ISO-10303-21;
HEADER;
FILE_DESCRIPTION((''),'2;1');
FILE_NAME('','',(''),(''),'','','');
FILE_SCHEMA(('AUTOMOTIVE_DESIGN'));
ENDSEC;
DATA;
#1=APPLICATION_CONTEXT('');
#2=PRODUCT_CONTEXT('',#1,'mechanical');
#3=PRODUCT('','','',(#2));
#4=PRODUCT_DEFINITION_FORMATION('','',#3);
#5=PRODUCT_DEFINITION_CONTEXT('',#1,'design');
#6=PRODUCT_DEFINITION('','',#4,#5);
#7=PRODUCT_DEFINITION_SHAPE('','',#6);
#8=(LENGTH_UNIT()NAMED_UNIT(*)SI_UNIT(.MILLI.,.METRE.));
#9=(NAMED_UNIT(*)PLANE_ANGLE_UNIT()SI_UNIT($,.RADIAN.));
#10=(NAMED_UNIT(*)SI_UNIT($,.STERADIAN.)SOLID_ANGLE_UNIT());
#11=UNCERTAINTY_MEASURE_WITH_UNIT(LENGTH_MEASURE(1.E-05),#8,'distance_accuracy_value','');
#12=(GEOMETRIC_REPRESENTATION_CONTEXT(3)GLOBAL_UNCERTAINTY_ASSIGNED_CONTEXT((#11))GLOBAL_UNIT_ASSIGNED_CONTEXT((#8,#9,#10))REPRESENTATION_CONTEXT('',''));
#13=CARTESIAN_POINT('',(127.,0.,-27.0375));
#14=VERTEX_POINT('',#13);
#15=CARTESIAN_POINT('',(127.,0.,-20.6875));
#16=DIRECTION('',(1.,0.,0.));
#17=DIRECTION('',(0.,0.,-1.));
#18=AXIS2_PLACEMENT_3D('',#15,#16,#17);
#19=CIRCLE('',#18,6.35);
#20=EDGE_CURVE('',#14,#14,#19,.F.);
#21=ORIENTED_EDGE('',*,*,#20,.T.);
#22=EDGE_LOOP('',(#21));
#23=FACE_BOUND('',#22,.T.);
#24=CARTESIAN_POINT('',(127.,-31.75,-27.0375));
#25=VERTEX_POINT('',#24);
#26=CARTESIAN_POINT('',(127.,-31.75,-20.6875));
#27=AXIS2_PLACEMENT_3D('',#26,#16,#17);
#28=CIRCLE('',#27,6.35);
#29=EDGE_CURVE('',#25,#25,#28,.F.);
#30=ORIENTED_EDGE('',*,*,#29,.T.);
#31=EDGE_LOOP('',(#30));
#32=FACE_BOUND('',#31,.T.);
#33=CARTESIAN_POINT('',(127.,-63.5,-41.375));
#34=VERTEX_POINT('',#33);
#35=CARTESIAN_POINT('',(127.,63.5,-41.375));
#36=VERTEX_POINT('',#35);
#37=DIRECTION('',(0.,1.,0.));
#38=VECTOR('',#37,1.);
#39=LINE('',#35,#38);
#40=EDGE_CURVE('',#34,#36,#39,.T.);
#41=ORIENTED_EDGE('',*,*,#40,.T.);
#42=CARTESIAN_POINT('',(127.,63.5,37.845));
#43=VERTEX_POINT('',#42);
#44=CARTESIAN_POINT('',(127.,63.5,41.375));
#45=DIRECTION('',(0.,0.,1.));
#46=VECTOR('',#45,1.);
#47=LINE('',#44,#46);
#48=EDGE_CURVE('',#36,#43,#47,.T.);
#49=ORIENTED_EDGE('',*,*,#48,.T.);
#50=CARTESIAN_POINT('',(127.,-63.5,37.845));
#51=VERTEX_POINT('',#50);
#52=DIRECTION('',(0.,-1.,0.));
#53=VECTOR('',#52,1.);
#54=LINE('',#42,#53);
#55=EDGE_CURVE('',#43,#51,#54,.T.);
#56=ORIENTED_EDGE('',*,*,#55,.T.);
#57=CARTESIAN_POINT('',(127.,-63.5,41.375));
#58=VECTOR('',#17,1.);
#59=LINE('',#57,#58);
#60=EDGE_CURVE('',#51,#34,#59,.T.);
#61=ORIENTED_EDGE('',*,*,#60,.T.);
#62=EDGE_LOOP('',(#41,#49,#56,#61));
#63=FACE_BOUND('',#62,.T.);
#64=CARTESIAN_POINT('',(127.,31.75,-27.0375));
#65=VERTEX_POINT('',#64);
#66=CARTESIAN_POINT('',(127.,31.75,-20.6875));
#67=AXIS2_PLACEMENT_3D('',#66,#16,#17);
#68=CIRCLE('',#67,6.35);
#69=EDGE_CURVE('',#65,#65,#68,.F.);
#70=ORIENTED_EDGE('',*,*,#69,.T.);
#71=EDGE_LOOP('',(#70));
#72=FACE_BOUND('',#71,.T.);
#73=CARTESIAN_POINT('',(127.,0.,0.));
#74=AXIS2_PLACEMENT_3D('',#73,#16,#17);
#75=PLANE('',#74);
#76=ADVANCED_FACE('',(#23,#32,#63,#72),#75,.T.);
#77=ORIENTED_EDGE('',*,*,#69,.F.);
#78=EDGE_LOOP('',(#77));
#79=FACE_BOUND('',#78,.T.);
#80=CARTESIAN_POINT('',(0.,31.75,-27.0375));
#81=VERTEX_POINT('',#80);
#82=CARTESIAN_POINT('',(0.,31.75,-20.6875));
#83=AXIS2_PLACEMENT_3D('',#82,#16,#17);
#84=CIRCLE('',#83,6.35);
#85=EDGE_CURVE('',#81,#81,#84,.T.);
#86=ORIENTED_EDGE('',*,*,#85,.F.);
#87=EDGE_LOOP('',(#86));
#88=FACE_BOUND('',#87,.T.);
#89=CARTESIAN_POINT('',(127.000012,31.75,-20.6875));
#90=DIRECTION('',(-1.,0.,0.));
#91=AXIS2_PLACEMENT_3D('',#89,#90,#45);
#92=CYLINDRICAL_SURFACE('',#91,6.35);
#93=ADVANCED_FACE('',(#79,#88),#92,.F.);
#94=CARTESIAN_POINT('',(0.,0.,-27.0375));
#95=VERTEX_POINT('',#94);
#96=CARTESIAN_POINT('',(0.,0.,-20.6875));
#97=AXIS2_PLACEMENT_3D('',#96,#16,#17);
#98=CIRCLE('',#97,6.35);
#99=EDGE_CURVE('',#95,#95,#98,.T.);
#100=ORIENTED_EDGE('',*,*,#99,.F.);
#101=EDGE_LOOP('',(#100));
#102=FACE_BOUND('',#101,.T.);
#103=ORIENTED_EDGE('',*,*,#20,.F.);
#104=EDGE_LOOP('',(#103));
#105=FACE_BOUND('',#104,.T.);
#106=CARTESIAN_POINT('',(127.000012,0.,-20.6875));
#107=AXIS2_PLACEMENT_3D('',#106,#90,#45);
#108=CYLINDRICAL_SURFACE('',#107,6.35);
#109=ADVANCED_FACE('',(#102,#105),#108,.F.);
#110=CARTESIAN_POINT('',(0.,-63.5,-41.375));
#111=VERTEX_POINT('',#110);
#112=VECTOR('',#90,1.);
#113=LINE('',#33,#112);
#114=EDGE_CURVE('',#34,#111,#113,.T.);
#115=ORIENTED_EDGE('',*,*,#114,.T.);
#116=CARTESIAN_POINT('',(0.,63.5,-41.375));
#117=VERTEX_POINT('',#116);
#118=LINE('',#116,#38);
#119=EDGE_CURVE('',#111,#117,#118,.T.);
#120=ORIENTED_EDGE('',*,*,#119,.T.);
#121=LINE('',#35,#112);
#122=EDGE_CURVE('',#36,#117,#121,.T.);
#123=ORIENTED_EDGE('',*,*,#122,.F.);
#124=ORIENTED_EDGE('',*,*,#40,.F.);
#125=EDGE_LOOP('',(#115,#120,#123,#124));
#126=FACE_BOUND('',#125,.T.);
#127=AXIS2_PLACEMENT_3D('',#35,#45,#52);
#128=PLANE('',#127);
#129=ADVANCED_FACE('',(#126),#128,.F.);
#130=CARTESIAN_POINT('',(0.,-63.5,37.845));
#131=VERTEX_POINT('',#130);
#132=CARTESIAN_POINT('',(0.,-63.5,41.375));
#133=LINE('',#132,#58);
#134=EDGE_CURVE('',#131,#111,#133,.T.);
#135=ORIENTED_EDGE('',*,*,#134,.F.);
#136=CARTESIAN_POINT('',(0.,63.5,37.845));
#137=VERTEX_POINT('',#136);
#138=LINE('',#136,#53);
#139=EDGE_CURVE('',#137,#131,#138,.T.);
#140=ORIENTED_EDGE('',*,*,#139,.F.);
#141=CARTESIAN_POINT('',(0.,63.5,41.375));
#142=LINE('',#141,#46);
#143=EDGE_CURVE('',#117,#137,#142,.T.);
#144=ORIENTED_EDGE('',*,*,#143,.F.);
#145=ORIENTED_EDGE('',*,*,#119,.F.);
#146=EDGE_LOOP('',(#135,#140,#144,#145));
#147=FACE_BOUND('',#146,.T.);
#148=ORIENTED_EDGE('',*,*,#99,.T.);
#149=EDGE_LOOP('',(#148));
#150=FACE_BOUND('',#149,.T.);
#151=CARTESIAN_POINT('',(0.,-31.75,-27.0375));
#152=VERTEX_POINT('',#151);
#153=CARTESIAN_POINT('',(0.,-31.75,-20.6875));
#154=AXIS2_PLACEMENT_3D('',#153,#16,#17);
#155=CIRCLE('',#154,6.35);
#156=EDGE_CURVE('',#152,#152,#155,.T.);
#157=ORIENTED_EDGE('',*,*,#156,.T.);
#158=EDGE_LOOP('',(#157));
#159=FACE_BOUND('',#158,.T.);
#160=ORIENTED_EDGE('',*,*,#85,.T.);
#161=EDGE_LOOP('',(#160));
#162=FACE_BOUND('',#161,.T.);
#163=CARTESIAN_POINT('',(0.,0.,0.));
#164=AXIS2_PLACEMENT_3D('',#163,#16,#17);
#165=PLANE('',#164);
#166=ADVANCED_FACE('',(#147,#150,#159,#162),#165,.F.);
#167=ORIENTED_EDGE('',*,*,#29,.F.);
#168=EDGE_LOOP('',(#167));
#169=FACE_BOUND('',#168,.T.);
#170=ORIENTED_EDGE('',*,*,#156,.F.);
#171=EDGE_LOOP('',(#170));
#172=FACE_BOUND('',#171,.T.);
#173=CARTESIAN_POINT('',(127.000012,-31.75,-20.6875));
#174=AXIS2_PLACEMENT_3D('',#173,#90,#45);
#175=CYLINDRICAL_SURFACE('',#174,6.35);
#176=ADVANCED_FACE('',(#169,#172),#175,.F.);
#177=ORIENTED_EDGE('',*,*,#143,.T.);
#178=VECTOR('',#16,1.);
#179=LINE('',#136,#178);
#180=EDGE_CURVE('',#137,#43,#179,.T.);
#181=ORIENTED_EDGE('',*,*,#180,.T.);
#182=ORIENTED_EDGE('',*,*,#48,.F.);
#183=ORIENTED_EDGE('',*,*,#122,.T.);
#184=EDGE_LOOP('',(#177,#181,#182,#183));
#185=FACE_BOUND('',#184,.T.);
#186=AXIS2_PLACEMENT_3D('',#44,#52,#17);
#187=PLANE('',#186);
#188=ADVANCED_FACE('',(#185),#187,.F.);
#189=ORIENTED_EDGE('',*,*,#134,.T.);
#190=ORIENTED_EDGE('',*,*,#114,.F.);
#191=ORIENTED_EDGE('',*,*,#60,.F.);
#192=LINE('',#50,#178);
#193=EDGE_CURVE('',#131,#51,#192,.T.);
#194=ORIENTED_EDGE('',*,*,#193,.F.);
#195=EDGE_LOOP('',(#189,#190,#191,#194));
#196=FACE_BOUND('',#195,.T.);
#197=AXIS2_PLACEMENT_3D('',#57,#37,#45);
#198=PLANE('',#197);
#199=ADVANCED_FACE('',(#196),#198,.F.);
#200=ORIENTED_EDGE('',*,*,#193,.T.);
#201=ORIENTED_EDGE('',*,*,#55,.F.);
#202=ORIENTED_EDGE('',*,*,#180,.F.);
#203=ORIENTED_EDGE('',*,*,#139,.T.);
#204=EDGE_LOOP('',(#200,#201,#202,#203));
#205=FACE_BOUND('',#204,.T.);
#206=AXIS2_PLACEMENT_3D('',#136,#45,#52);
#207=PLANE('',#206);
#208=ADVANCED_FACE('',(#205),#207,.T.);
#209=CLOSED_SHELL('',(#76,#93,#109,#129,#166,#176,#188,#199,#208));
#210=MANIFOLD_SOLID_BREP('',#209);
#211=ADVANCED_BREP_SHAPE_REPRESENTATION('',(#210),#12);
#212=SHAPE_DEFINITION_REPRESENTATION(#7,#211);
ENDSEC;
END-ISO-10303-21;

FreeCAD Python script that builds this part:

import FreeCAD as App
import Part
import Sketcher
from FreeCAD import Vector


def add_polygon(sketch, points):
    """Adds a closed chain of lines whose ends are joined by coincident constraints."""
    first, n = sketch.GeometryCount, len(points)
    for a, b in zip(points, points[1:] + points[:1]):
        sketch.addGeometry(Part.LineSegment(App.Vector(*a, 0), App.Vector(*b, 0)), False)
    for i in range(n):
        sketch.addConstraint(Sketcher.Constraint("Coincident", first + i, 2, first + (i + 1) % n, 1))

doc = App.newDocument("Part")
params = doc.addObject("Spreadsheet::Sheet", "Params")
for row, (alias, value) in enumerate([
    ("sketch1_width", "127 mm"),
    ("sketch1_height", "82.75 mm"),
    ("pad1_length", "127 mm"),
    ("sketch2_diameter", "12.7 mm"),
    ("pocket2_length", "127 mm"),
    ("sketch4_width", "200 mm"),
], start=1):
    params.set(f"A{row}", alias)
    params.set(f"B{row}", "=" + value)
    params.setAlias(f"B{row}", alias)

body = doc.addObject("PartDesign::Body", "Body")

# Sketch on YZ plane
sketch1 = body.newObject("Sketcher::SketchObject", "Sketch")
sketch1.AttachmentSupport = (doc.getObject("YZ_Plane"), [""])
sketch1.MapMode = "FlatFace"
add_polygon(sketch1, [(63.5, 41.375), (-63.5, 41.375), (-63.5, -41.375), (63.5, -41.375)])  # lines 0-3
sketch1.addConstraint(Sketcher.Constraint("Horizontal", 0))
sketch1.addConstraint(Sketcher.Constraint("Vertical", 1))
sketch1.addConstraint(Sketcher.Constraint("Horizontal", 2))
sketch1.addConstraint(Sketcher.Constraint("Vertical", 3))
sketch1.addConstraint(Sketcher.Constraint("Symmetric", 0, 2, 2, 2, -1, 1))
sketch1.addConstraint(Sketcher.Constraint("DistanceX", 0, 2, 0, 1, 127.0))
sketch1.addConstraint(Sketcher.Constraint("DistanceY", 1, 2, 1, 1, 82.75))
sketch1.setExpression("Constraints[9]", "Params.sketch1_width")
sketch1.setExpression("Constraints[10]", "Params.sketch1_height")
pad1 = body.newObject("PartDesign::Pad", "Pad")
pad1.Profile = sketch1
pad1.setExpression("Length", "Params.pad1_length")

# Sketch on YZ plane
sketch2 = body.newObject("Sketcher::SketchObject", "Sketch001")
sketch2.AttachmentSupport = (doc.getObject("YZ_Plane"), [""])
sketch2.MapMode = "FlatFace"
sketch2.AttachmentOffset = App.Placement(Vector(0, 0, 127), App.Rotation())
sketch2.addGeometry(Part.Circle(Vector(31.75, -20.6875, 0), Vector(0, 0, 1), 6.35), False)
sketch2.addGeometry(Part.Circle(Vector(-31.75, -20.6875, 0), Vector(0, 0, 1), 6.35), False)
sketch2.addGeometry(Part.Circle(Vector(0, -20.6875, 0), Vector(0, 0, 1), 6.35), False)
sketch2.addConstraint(Sketcher.Constraint("Equal", 0, 1))
sketch2.addConstraint(Sketcher.Constraint("Equal", 1, 2))
sketch2.addConstraint(Sketcher.Constraint("Symmetric", 0, 3, 1, 3, -2))
sketch2.addConstraint(Sketcher.Constraint("PointOnObject", 2, 3, -2))
sketch2.addConstraint(Sketcher.Constraint("Horizontal", 1, 3, 2, 3))
sketch2.addConstraint(Sketcher.Constraint("Diameter", 0, 12.7))
sketch2.addConstraint(Sketcher.Constraint("DistanceX", 1, 3, 0, 3, 63.5))
sketch2.addConstraint(Sketcher.Constraint("DistanceY", 0, 3, -1, 1, 20.6875))
sketch2.setExpression("Constraints[5]", "Params.sketch2_diameter")
pocket1 = body.newObject("PartDesign::Pocket", "Pocket")
pocket1.Profile = sketch2
pocket1.Type = "ThroughAll"
pocket1.Midplane = True

# Sketch on YZ plane
sketch3 = body.newObject("Sketcher::SketchObject", "Sketch002")
sketch3.AttachmentSupport = (doc.getObject("YZ_Plane"), [""])
sketch3.MapMode = "FlatFace"
sketch3.AttachmentOffset = App.Placement(Vector(0, 0, 127), App.Rotation())
add_polygon(sketch3, [(63.5, 67.388042), (-66.189602, 67.388042), (-66.189602, 38.635), (63.5, 38.635)])  # lines 0-3
sketch3.addConstraint(Sketcher.Constraint("Horizontal", 0))
sketch3.addConstraint(Sketcher.Constraint("Vertical", 1))
sketch3.addConstraint(Sketcher.Constraint("Horizontal", 2))
sketch3.addConstraint(Sketcher.Constraint("Vertical", 3))
sketch3.addConstraint(Sketcher.Constraint("DistanceX", -1, 1, 2, 2, 63.5))
sketch3.addConstraint(Sketcher.Constraint("DistanceX", 0, 2, 0, 1, 129.689602))
sketch3.addConstraint(Sketcher.Constraint("DistanceY", -1, 1, 1, 2, 38.635))
sketch3.addConstraint(Sketcher.Constraint("DistanceY", 1, 2, 1, 1, 28.753042))
pocket2 = body.newObject("PartDesign::Pocket", "Pocket001")
pocket2.Profile = sketch3
pocket2.setExpression("Length", "Params.pocket2_length")

# Sketch on YZ plane
sketch4 = body.newObject("Sketcher::SketchObject", "Sketch003")
sketch4.AttachmentSupport = (doc.getObject("YZ_Plane"), [""])
sketch4.MapMode = "FlatFace"
sketch4.AttachmentOffset = App.Placement(Vector(0, 0, 127), App.Rotation())
add_polygon(sketch4, [(63.5, 41.055143), (-136.5, 41.055143), (-136.5, 37.845), (63.5, 37.845)])  # lines 0-3
sketch4.addConstraint(Sketcher.Constraint("Horizontal", 0))
sketch4.addConstraint(Sketcher.Constraint("Vertical", 1))
sketch4.addConstraint(Sketcher.Constraint("Horizontal", 2))
sketch4.addConstraint(Sketcher.Constraint("Vertical", 3))
sketch4.addConstraint(Sketcher.Constraint("DistanceX", 0, 2, 0, 1, 200.0))
sketch4.addConstraint(Sketcher.Constraint("DistanceX", 0, 2, -1, 1, 136.5))
sketch4.addConstraint(Sketcher.Constraint("DistanceY", -1, 1, 1, 2, 37.845))
sketch4.addConstraint(Sketcher.Constraint("DistanceY", 1, 2, 1, 1, 3.210143))
sketch4.setExpression("Constraints[8]", "Params.sketch4_width")
pocket3 = body.newObject("PartDesign::Pocket", "Pocket002")
pocket3.Profile = sketch4
pocket3.Type = "ThroughAll"

doc.recompute()
